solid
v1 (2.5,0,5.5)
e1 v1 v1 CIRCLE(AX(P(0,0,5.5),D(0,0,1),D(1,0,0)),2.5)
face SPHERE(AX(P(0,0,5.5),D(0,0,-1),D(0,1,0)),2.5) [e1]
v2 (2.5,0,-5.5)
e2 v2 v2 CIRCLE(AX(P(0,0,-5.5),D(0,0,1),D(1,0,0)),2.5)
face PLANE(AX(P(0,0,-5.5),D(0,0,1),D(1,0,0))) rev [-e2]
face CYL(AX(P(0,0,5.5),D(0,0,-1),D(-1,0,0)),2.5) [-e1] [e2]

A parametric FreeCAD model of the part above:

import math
import FreeCAD as App
import Part
import Sketcher

doc = App.newDocument("Part")
body = doc.addObject("PartDesign::Body", "Body")

# Sketch on XY plane
sketch1 = body.newObject("Sketcher::SketchObject", "Sketch")
sketch1.AttachmentSupport = (doc.getObject("XY_Plane"), [""])
sketch1.MapMode = "FlatFace"
sketch1.addGeometry(Part.Circle(App.Vector(0, 0, 0), App.Vector(0, 0, 1), 2.5), False)
sketch1.addConstraint([
    Sketcher.Constraint("Coincident", 0, 3, -1, 1),
    Sketcher.Constraint("Diameter", 0, 5.0),
])
pad1 = body.newObject("PartDesign::Pad", "Pad")
pad1.Profile = sketch1
pad1.Length = 11
pad1.Midplane = True

# Sketch on YZ plane
sketch2 = body.newObject("Sketcher::SketchObject", "Sketch001")
sketch2.AttachmentSupport = (doc.getObject("YZ_Plane"), [""])
sketch2.MapMode = "FlatFace"
sketch2.addGeometry([
    Part.LineSegment(App.Vector(0, 5.5, 0), App.Vector(2.5, 5.5, 0)),
    Part.ArcOfCircle(Part.Circle(App.Vector(0, 5.5, 0), App.Vector(0, 0, 1), 2.5), math.radians(0), math.radians(90)),
    Part.LineSegment(App.Vector(0, 8, 0), App.Vector(0, 5.5, 0)),
], False)
sketch2.addConstraint([
    Sketcher.Constraint("Coincident", 0, 2, 1, 1),
    Sketcher.Constraint("Coincident", 1, 2, 2, 1),
    Sketcher.Constraint("Coincident", 2, 2, 0, 1),
    Sketcher.Constraint("Horizontal", 0),
    Sketcher.Constraint("Vertical", 2),
    Sketcher.Constraint("Coincident", 2, 2, 1, 3),
    Sketcher.Constraint("PointOnObject", 1, 3, -2),
    Sketcher.Constraint("Radius", 1, 2.5),
    Sketcher.Constraint("DistanceY", -1, 1, 1, 2, 8.0),
])
revolution = body.newObject("PartDesign::Revolution", "Revolution")
revolution.Profile = sketch2
revolution.ReferenceAxis = (sketch2, ["V_Axis"])
revolution.Angle = 360

doc.recompute()
